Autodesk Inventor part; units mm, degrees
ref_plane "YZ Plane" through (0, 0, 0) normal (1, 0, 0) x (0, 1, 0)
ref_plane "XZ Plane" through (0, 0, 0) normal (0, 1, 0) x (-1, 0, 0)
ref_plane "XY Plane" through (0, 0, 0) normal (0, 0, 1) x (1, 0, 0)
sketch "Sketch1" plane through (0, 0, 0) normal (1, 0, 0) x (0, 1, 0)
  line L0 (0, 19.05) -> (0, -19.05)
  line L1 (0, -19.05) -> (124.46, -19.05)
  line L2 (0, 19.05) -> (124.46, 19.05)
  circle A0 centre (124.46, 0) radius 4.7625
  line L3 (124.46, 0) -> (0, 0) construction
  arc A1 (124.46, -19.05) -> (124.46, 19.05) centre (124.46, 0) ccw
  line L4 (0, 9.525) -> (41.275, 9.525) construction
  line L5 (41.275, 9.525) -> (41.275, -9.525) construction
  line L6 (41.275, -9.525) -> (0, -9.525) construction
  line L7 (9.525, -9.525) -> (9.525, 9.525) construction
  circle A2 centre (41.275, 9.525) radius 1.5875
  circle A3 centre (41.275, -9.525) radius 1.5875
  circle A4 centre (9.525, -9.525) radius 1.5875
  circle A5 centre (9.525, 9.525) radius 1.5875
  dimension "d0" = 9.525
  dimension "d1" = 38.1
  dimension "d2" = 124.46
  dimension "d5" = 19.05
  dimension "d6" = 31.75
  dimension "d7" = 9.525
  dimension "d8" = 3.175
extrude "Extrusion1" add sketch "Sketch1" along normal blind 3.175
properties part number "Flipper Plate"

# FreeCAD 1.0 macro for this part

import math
import FreeCAD as App
import Part
import Sketcher
from FreeCAD import Vector
Q = App.Units.Quantity

doc = App.newDocument("Part")
body = doc.addObject("PartDesign::Body", "Body")

# Sketch on YZ plane
sketch1 = body.newObject("Sketcher::SketchObject", "Sketch")
sketch1.AttachmentSupport = (doc.getObject("YZ_Plane"), [""])
sketch1.MapMode = "FlatFace"
sketch1.addGeometry(Part.LineSegment(Vector(124.5, 19.1, 0), Vector(0, 19.1, 0)), False)
sketch1.addGeometry(Part.LineSegment(Vector(0, 19.1, 0), Vector(0, -19.1, 0)), False)
sketch1.addGeometry(Part.LineSegment(Vector(0, -19.1, 0), Vector(124.5, -19.1, 0)), False)
sketch1.addGeometry(Part.ArcOfCircle(Part.Circle(Vector(124.5, 0, 0), Vector(0, 0, 1), 19.1), math.radians(-90), math.radians(90)), False)
sketch1.addGeometry(Part.Circle(Vector(9.5, -9.5, 0), Vector(0, 0, 1), 1.6), False)
sketch1.addGeometry(Part.Circle(Vector(41.3, -9.5, 0), Vector(0, 0, 1), 1.6), False)
sketch1.addGeometry(Part.Circle(Vector(9.5, 9.5, 0), Vector(0, 0, 1), 1.6), False)
sketch1.addGeometry(Part.Circle(Vector(41.3, 9.5, 0), Vector(0, 0, 1), 1.6), False)
sketch1.addGeometry(Part.Circle(Vector(124.5, 0, 0), Vector(0, 0, 1), 4.8), False)
sketch1.addConstraint(Sketcher.Constraint("Coincident", 0, 2, 1, 1))
sketch1.addConstraint(Sketcher.Constraint("Coincident", 1, 2, 2, 1))
sketch1.addConstraint(Sketcher.Constraint("Tangent", 2, 2, 3, 1))
sketch1.addConstraint(Sketcher.Constraint("Tangent", 3, 2, 0, 1))
sketch1.addConstraint(Sketcher.Constraint("Horizontal", 0))
sketch1.addConstraint(Sketcher.Constraint("Vertical", 1))
sketch1.addConstraint(Sketcher.Constraint("Horizontal", 2))
sketch1.addConstraint(Sketcher.Constraint("Coincident", 8, 3, 3, 3))
sketch1.addConstraint(Sketcher.Constraint("Equal", 4, 5))
sketch1.addConstraint(Sketcher.Constraint("Equal", 5, 6))
sketch1.addConstraint(Sketcher.Constraint("Equal", 6, 7))
sketch1.addConstraint(Sketcher.Constraint("Symmetric", 0, 2, 1, 2, -1, 1))
sketch1.addConstraint(Sketcher.Constraint("Symmetric", 4, 3, 6, 3, -1))
sketch1.addConstraint(Sketcher.Constraint("Symmetric", 5, 3, 7, 3, -1))
sketch1.addConstraint(Sketcher.Constraint("Horizontal", 4, 3, 5, 3))
sketch1.addConstraint(Sketcher.Constraint("Radius", 3, Q("0.75 in")))
sketch1.addConstraint(Sketcher.Constraint("Diameter", 4, Q("0.125 in")))
sketch1.addConstraint(Sketcher.Constraint("Diameter", 8, Q("0.375 in")))
sketch1.addConstraint(Sketcher.Constraint("DistanceX", 0, 2, 0, 1, Q("4.9 in")))
sketch1.addConstraint(Sketcher.Constraint("DistanceX", 4, 3, 5, 3, Q("1.25 in")))
sketch1.addConstraint(Sketcher.Constraint("DistanceY", 4, 3, 6, 3, Q("0.75 in")))
sketch1.addConstraint(Sketcher.Constraint("DistanceX", -1, 1, 4, 3, Q("0.375 in")))
pad1 = body.newObject("PartDesign::Pad", "Pad")
pad1.Profile = sketch1
pad1.Length = Q("0.125 in")

doc.recompute()
